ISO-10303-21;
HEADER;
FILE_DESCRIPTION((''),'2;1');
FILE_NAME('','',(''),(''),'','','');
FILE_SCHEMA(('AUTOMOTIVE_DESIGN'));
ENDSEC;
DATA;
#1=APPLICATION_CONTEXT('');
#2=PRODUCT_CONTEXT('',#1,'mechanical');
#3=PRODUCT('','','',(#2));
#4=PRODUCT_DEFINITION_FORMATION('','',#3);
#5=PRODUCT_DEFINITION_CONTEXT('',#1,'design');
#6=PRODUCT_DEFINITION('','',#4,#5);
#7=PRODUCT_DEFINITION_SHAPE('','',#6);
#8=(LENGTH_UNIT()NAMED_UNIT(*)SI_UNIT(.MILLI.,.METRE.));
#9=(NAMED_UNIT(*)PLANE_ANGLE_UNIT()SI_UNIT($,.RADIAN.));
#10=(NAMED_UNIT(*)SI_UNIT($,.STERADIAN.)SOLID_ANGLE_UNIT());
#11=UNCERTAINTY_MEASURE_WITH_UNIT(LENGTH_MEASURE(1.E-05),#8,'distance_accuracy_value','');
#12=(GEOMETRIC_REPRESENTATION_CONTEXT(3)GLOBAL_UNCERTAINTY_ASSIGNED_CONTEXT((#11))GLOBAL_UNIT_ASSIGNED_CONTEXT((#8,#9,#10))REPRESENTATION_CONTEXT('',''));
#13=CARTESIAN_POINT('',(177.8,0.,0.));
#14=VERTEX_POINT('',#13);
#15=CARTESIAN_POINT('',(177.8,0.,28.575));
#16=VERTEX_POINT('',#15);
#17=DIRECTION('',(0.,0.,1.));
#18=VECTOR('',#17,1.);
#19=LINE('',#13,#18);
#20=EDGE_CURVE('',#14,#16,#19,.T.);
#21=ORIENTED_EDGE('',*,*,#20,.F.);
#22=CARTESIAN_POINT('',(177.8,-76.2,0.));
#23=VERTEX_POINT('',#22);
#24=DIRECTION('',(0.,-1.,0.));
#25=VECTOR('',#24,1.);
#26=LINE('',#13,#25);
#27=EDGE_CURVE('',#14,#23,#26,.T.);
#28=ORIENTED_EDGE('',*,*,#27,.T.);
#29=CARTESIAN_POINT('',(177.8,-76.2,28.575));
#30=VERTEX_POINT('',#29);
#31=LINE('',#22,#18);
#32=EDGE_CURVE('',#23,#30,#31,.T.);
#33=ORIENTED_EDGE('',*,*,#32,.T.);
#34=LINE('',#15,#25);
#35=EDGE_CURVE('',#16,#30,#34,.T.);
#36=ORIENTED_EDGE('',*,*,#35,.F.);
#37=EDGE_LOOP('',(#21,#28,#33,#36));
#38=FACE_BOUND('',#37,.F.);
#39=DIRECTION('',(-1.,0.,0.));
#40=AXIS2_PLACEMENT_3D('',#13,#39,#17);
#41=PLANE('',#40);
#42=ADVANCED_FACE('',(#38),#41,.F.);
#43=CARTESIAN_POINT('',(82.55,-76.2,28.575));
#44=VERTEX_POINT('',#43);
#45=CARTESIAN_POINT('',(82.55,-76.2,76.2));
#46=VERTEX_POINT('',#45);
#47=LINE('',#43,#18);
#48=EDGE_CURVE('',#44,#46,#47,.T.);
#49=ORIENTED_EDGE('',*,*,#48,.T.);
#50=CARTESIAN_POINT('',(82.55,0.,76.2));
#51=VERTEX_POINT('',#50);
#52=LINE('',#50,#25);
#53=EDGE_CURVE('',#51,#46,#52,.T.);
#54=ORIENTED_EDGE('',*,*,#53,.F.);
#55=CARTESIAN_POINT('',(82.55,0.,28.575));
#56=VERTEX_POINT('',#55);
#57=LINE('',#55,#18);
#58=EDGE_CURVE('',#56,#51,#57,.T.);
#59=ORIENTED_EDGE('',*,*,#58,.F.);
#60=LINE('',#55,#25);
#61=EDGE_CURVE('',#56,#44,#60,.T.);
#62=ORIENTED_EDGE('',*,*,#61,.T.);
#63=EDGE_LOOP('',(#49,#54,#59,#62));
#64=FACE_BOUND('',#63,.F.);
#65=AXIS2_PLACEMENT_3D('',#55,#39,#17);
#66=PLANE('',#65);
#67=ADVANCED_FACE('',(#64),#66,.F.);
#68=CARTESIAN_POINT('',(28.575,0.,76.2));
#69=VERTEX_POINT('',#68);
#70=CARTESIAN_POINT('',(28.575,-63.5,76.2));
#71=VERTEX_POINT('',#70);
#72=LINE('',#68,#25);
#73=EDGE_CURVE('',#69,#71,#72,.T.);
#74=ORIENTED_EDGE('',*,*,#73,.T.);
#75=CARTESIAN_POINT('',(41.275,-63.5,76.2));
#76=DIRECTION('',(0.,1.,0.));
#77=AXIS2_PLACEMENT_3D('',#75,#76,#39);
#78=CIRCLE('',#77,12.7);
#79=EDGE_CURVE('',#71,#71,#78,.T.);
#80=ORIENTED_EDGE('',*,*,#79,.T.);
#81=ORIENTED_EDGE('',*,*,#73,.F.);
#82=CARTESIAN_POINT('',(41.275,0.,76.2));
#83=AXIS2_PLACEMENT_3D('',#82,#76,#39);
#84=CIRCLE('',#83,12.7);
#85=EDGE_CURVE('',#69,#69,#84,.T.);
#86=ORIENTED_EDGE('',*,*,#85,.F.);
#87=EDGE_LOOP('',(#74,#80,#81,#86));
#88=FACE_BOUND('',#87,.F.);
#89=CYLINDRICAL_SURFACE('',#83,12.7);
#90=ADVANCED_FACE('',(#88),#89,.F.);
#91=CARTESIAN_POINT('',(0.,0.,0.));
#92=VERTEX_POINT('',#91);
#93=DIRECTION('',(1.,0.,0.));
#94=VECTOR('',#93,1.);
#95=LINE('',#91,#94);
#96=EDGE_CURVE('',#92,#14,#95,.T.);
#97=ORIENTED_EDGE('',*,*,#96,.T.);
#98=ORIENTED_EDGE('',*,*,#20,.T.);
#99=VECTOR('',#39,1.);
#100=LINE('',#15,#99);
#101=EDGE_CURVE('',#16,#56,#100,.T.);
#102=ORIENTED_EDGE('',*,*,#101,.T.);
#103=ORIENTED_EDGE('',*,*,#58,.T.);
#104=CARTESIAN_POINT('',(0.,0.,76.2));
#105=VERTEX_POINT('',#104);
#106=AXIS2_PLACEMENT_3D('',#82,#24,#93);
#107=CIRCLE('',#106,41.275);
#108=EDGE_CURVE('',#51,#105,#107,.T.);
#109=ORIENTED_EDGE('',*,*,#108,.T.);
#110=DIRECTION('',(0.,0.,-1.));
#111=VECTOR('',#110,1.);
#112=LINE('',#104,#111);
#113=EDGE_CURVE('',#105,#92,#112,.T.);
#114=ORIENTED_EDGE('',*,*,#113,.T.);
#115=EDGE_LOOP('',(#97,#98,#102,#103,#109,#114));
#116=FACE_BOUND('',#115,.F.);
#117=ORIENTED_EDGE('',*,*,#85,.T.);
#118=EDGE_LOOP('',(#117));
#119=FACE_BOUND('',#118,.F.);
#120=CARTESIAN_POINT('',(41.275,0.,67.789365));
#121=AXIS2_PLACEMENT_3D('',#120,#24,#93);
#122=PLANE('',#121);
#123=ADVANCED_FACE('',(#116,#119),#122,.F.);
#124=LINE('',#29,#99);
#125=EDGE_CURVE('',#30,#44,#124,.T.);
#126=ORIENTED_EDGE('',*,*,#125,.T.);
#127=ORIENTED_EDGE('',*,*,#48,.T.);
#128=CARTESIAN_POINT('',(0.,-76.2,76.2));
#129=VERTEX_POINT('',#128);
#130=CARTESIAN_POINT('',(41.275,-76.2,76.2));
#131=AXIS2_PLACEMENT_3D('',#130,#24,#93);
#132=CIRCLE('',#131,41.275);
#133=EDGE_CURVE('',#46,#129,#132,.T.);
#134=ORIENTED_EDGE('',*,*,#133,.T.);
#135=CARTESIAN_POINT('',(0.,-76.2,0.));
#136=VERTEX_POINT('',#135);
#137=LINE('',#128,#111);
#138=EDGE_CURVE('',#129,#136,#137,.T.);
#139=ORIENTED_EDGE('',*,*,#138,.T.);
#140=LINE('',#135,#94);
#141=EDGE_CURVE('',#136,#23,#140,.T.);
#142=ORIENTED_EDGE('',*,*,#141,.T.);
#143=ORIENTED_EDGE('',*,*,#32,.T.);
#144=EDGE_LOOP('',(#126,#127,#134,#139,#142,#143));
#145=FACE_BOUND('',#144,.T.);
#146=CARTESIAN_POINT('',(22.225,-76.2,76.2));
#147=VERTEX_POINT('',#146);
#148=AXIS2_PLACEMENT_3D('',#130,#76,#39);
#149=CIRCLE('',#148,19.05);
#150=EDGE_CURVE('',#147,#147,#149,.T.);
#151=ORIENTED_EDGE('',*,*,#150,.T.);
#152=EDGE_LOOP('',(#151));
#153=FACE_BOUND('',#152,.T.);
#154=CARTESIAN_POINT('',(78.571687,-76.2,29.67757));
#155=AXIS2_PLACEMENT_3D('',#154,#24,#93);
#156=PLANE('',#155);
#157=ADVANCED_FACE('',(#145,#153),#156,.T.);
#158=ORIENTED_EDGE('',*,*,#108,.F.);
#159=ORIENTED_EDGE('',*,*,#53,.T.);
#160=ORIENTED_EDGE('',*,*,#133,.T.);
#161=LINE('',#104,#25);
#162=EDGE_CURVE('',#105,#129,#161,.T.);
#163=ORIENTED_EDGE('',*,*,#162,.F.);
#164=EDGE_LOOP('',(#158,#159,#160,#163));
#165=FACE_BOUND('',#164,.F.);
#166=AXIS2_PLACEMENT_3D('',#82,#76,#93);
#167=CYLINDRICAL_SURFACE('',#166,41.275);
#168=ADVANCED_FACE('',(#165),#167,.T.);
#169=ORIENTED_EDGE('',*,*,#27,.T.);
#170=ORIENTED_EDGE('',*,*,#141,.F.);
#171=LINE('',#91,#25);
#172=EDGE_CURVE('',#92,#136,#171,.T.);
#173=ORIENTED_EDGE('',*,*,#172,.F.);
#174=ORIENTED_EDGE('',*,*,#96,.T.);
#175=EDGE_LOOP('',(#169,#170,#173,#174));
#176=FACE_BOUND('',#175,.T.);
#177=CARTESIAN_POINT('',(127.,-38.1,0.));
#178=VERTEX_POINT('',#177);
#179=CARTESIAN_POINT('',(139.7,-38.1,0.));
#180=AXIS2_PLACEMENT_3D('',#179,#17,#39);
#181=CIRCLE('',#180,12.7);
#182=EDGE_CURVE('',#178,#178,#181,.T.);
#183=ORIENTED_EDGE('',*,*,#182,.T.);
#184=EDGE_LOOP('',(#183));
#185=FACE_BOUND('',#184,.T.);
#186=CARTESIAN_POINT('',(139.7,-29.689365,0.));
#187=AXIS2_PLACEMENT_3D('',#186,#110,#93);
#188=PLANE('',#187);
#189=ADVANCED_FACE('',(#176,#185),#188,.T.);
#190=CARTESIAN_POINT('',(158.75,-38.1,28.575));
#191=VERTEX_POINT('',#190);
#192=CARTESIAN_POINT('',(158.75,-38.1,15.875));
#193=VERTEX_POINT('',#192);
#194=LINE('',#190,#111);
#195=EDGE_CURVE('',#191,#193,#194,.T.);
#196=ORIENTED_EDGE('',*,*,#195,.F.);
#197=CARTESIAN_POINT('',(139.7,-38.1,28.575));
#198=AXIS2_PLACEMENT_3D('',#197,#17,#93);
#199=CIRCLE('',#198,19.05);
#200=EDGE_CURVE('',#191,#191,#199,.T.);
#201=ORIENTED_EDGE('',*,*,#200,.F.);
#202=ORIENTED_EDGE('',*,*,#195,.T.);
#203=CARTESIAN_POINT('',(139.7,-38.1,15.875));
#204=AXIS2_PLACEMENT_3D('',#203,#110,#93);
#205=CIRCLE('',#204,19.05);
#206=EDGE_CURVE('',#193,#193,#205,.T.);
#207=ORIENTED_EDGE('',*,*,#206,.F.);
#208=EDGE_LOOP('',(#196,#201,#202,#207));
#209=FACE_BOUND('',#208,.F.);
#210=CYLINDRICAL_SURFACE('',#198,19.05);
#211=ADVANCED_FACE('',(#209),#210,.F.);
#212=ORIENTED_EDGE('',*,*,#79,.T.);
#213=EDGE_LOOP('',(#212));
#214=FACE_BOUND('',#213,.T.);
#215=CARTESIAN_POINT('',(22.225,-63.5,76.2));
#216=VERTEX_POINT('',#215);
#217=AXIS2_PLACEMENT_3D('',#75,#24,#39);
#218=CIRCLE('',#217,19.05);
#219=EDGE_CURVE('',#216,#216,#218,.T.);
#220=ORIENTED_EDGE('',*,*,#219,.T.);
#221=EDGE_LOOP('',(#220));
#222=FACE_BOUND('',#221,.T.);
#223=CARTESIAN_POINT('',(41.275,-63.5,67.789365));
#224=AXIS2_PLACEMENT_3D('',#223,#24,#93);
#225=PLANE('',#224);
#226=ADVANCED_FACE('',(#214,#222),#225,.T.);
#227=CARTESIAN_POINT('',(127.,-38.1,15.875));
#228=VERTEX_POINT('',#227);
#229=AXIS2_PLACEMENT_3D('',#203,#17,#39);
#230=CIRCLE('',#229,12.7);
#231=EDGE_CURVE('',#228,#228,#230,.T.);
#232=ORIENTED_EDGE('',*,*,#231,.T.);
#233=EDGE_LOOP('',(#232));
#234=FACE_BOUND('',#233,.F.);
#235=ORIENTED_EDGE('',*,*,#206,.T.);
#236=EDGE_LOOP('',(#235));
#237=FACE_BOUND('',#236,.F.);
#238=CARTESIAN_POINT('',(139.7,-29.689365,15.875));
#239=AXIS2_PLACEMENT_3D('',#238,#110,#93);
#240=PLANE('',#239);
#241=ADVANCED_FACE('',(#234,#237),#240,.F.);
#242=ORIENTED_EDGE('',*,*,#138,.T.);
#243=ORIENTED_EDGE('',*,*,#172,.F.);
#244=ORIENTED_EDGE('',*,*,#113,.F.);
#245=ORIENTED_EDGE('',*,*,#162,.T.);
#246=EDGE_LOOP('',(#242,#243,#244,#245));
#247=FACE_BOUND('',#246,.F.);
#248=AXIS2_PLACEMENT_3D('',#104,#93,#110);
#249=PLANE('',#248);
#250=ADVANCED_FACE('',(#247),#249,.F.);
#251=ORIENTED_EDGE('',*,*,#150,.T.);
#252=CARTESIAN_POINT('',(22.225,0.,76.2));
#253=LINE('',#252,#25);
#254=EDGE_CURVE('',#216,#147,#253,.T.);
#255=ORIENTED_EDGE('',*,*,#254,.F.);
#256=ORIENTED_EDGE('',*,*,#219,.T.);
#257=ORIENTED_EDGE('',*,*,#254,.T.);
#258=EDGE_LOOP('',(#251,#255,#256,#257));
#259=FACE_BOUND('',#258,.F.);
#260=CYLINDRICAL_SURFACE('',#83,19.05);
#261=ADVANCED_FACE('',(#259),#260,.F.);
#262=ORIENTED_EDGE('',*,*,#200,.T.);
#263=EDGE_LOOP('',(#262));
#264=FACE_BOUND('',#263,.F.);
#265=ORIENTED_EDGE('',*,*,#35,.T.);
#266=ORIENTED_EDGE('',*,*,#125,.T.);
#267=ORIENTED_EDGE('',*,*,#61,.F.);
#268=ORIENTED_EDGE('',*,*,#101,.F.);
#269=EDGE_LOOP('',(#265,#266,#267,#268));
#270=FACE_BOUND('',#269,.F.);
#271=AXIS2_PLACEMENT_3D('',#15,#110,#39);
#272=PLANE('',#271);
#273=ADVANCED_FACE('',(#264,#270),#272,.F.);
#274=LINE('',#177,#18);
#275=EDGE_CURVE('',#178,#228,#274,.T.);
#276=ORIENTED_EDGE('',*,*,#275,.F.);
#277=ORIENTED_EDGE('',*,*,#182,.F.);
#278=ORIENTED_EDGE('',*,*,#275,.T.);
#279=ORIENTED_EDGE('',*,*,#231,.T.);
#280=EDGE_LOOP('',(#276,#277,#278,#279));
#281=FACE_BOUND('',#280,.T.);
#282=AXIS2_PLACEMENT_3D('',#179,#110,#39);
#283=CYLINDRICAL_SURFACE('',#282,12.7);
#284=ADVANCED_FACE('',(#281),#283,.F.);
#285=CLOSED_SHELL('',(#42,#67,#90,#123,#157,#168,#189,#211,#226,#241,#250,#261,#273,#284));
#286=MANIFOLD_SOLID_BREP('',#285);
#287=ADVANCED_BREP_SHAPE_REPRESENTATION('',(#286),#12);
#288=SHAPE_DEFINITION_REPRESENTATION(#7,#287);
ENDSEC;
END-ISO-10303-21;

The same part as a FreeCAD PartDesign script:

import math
import FreeCAD as App
import Part
import Sketcher
Q = App.Units.Quantity

doc = App.newDocument("Part")
body = doc.addObject("PartDesign::Body", "Body")

# Sketch on XZ plane
sketch1 = body.newObject("Sketcher::SketchObject", "Sketch")
sketch1.AttachmentSupport = (doc.getObject("XZ_Plane"), [""])
sketch1.MapMode = "FlatFace"
sketch1.addGeometry([
    Part.LineSegment(App.Vector(0, 76.2, 0), App.Vector(0, 0, 0)),  # 0
    Part.LineSegment(App.Vector(0, 0, 0), App.Vector(177.8, 0, 0)),  # 1
    Part.LineSegment(App.Vector(177.8, 0, 0), App.Vector(177.8, 28.575, 0)),  # 2
    Part.LineSegment(App.Vector(177.8, 28.575, 0), App.Vector(82.55, 28.575, 0)),  # 3
    Part.LineSegment(App.Vector(82.55, 28.575, 0), App.Vector(82.55, 76.2, 0)),  # 4
    Part.ArcOfCircle(Part.Circle(App.Vector(41.275, 76.2, 0), App.Vector(0, 0, 1), 41.275), math.radians(0), math.radians(180)),  # 5
    Part.Circle(App.Vector(41.275, 76.2, 0), App.Vector(0, 0, 1), 19.05),  # 6
], False)
sketch1.addConstraint([
    Sketcher.Constraint("Coincident", 0, 2, 1, 1),
    Sketcher.Constraint("Coincident", 1, 2, 2, 1),
    Sketcher.Constraint("Coincident", 2, 2, 3, 1),
    Sketcher.Constraint("Coincident", 3, 2, 4, 1),
    Sketcher.Constraint("Tangent", 4, 2, 5, 1),
    Sketcher.Constraint("Tangent", 5, 2, 0, 1),
    Sketcher.Constraint("Vertical", 0),
    Sketcher.Constraint("Horizontal", 1),
    Sketcher.Constraint("Vertical", 2),
    Sketcher.Constraint("Horizontal", 3),
    Sketcher.Constraint("Vertical", 4),
    Sketcher.Constraint("Coincident", 0, 2, -1, 1),
    Sketcher.Constraint("Coincident", 6, 3, 5, 3),
    Sketcher.Constraint("Diameter", 6, Q("1.5 in")),
    Sketcher.Constraint("DistanceX", 1, 1, 1, 2, Q("7 in")),
    Sketcher.Constraint("DistanceY", 0, 2, 0, 1, Q("3 in")),
    Sketcher.Constraint("Radius", 5, Q("1.625 in")),
    Sketcher.Constraint("DistanceY", 2, 1, 2, 2, Q("1.125 in")),
])
pad1 = body.newObject("PartDesign::Pad", "Pad")
pad1.Profile = sketch1
pad1.Length = Q("3 in")

# Sketch on XZ plane
sketch2 = body.newObject("Sketcher::SketchObject", "Sketch001")
sketch2.AttachmentSupport = (doc.getObject("XZ_Plane"), [""])
sketch2.MapMode = "FlatFace"
sketch2.addGeometry([
    Part.Circle(App.Vector(41.275, 76.2, 0), App.Vector(0, 0, 1), 19.05),
    Part.Circle(App.Vector(41.275, 76.2, 0), App.Vector(0, 0, 1), 12.7),
], False)
sketch2.addConstraint([
    Sketcher.Constraint("Coincident", 1, 3, 0, 3),
    Sketcher.Constraint("Diameter", 1, Q("1 in")),
    Sketcher.Constraint("Diameter", 0, Q("1.5 in")),
    Sketcher.Constraint("DistanceY", -1, 1, 0, 3, Q("3 in")),
    Sketcher.Constraint("DistanceX", -1, 1, 0, 3, Q("1.625 in")),
])
pad2 = body.newObject("PartDesign::Pad", "Pad001")
pad2.Profile = sketch2
pad2.Length = Q("2.5 in")

# Sketch on XY plane
sketch3 = body.newObject("Sketcher::SketchObject", "Sketch002")
sketch3.AttachmentSupport = (doc.getObject("XY_Plane"), [""])
sketch3.MapMode = "FlatFace"
sketch3.AttachmentOffset = App.Placement(App.Vector(0, 0, 1.125 * 25.4), App.Rotation())
sketch3.addGeometry(Part.Circle(App.Vector(139.7, -38.1, 0), App.Vector(0, 0, 1), 19.05), False)
sketch3.addConstraint([
    Sketcher.Constraint("Diameter", 0, Q("1.5 in")),
    Sketcher.Constraint("DistanceX", -1, 1, 0, 3, Q("5.5 in")),
    Sketcher.Constraint("DistanceY", 0, 3, -1, 1, Q("1.5 in")),
])
pocket1 = body.newObject("PartDesign::Pocket", "Pocket")
pocket1.Profile = sketch3
pocket1.Length = Q("5 in")

# Sketch on XY plane
sketch4 = body.newObject("Sketcher::SketchObject", "Sketch003")
sketch4.AttachmentSupport = (doc.getObject("XY_Plane"), [""])
sketch4.MapMode = "FlatFace"
sketch4.addGeometry([
    Part.Circle(App.Vector(139.7, -38.1, 0), App.Vector(0, 0, 1), 19.05),
    Part.Circle(App.Vector(139.7, -38.1, 0), App.Vector(0, 0, 1), 12.7),
], False)
sketch4.addConstraint([
    Sketcher.Constraint("Coincident", 1, 3, 0, 3),
    Sketcher.Constraint("Diameter", 1, Q("1 in")),
    Sketcher.Constraint("Diameter", 0, Q("1.5 in")),
    Sketcher.Constraint("DistanceX", -1, 1, 0, 3, Q("5.5 in")),
    Sketcher.Constraint("DistanceY", 0, 3, -1, 1, Q("1.5 in")),
])
pad3 = body.newObject("PartDesign::Pad", "Pad002")
pad3.Profile = sketch4
pad3.Length = Q("0.625 in")

doc.recompute()
